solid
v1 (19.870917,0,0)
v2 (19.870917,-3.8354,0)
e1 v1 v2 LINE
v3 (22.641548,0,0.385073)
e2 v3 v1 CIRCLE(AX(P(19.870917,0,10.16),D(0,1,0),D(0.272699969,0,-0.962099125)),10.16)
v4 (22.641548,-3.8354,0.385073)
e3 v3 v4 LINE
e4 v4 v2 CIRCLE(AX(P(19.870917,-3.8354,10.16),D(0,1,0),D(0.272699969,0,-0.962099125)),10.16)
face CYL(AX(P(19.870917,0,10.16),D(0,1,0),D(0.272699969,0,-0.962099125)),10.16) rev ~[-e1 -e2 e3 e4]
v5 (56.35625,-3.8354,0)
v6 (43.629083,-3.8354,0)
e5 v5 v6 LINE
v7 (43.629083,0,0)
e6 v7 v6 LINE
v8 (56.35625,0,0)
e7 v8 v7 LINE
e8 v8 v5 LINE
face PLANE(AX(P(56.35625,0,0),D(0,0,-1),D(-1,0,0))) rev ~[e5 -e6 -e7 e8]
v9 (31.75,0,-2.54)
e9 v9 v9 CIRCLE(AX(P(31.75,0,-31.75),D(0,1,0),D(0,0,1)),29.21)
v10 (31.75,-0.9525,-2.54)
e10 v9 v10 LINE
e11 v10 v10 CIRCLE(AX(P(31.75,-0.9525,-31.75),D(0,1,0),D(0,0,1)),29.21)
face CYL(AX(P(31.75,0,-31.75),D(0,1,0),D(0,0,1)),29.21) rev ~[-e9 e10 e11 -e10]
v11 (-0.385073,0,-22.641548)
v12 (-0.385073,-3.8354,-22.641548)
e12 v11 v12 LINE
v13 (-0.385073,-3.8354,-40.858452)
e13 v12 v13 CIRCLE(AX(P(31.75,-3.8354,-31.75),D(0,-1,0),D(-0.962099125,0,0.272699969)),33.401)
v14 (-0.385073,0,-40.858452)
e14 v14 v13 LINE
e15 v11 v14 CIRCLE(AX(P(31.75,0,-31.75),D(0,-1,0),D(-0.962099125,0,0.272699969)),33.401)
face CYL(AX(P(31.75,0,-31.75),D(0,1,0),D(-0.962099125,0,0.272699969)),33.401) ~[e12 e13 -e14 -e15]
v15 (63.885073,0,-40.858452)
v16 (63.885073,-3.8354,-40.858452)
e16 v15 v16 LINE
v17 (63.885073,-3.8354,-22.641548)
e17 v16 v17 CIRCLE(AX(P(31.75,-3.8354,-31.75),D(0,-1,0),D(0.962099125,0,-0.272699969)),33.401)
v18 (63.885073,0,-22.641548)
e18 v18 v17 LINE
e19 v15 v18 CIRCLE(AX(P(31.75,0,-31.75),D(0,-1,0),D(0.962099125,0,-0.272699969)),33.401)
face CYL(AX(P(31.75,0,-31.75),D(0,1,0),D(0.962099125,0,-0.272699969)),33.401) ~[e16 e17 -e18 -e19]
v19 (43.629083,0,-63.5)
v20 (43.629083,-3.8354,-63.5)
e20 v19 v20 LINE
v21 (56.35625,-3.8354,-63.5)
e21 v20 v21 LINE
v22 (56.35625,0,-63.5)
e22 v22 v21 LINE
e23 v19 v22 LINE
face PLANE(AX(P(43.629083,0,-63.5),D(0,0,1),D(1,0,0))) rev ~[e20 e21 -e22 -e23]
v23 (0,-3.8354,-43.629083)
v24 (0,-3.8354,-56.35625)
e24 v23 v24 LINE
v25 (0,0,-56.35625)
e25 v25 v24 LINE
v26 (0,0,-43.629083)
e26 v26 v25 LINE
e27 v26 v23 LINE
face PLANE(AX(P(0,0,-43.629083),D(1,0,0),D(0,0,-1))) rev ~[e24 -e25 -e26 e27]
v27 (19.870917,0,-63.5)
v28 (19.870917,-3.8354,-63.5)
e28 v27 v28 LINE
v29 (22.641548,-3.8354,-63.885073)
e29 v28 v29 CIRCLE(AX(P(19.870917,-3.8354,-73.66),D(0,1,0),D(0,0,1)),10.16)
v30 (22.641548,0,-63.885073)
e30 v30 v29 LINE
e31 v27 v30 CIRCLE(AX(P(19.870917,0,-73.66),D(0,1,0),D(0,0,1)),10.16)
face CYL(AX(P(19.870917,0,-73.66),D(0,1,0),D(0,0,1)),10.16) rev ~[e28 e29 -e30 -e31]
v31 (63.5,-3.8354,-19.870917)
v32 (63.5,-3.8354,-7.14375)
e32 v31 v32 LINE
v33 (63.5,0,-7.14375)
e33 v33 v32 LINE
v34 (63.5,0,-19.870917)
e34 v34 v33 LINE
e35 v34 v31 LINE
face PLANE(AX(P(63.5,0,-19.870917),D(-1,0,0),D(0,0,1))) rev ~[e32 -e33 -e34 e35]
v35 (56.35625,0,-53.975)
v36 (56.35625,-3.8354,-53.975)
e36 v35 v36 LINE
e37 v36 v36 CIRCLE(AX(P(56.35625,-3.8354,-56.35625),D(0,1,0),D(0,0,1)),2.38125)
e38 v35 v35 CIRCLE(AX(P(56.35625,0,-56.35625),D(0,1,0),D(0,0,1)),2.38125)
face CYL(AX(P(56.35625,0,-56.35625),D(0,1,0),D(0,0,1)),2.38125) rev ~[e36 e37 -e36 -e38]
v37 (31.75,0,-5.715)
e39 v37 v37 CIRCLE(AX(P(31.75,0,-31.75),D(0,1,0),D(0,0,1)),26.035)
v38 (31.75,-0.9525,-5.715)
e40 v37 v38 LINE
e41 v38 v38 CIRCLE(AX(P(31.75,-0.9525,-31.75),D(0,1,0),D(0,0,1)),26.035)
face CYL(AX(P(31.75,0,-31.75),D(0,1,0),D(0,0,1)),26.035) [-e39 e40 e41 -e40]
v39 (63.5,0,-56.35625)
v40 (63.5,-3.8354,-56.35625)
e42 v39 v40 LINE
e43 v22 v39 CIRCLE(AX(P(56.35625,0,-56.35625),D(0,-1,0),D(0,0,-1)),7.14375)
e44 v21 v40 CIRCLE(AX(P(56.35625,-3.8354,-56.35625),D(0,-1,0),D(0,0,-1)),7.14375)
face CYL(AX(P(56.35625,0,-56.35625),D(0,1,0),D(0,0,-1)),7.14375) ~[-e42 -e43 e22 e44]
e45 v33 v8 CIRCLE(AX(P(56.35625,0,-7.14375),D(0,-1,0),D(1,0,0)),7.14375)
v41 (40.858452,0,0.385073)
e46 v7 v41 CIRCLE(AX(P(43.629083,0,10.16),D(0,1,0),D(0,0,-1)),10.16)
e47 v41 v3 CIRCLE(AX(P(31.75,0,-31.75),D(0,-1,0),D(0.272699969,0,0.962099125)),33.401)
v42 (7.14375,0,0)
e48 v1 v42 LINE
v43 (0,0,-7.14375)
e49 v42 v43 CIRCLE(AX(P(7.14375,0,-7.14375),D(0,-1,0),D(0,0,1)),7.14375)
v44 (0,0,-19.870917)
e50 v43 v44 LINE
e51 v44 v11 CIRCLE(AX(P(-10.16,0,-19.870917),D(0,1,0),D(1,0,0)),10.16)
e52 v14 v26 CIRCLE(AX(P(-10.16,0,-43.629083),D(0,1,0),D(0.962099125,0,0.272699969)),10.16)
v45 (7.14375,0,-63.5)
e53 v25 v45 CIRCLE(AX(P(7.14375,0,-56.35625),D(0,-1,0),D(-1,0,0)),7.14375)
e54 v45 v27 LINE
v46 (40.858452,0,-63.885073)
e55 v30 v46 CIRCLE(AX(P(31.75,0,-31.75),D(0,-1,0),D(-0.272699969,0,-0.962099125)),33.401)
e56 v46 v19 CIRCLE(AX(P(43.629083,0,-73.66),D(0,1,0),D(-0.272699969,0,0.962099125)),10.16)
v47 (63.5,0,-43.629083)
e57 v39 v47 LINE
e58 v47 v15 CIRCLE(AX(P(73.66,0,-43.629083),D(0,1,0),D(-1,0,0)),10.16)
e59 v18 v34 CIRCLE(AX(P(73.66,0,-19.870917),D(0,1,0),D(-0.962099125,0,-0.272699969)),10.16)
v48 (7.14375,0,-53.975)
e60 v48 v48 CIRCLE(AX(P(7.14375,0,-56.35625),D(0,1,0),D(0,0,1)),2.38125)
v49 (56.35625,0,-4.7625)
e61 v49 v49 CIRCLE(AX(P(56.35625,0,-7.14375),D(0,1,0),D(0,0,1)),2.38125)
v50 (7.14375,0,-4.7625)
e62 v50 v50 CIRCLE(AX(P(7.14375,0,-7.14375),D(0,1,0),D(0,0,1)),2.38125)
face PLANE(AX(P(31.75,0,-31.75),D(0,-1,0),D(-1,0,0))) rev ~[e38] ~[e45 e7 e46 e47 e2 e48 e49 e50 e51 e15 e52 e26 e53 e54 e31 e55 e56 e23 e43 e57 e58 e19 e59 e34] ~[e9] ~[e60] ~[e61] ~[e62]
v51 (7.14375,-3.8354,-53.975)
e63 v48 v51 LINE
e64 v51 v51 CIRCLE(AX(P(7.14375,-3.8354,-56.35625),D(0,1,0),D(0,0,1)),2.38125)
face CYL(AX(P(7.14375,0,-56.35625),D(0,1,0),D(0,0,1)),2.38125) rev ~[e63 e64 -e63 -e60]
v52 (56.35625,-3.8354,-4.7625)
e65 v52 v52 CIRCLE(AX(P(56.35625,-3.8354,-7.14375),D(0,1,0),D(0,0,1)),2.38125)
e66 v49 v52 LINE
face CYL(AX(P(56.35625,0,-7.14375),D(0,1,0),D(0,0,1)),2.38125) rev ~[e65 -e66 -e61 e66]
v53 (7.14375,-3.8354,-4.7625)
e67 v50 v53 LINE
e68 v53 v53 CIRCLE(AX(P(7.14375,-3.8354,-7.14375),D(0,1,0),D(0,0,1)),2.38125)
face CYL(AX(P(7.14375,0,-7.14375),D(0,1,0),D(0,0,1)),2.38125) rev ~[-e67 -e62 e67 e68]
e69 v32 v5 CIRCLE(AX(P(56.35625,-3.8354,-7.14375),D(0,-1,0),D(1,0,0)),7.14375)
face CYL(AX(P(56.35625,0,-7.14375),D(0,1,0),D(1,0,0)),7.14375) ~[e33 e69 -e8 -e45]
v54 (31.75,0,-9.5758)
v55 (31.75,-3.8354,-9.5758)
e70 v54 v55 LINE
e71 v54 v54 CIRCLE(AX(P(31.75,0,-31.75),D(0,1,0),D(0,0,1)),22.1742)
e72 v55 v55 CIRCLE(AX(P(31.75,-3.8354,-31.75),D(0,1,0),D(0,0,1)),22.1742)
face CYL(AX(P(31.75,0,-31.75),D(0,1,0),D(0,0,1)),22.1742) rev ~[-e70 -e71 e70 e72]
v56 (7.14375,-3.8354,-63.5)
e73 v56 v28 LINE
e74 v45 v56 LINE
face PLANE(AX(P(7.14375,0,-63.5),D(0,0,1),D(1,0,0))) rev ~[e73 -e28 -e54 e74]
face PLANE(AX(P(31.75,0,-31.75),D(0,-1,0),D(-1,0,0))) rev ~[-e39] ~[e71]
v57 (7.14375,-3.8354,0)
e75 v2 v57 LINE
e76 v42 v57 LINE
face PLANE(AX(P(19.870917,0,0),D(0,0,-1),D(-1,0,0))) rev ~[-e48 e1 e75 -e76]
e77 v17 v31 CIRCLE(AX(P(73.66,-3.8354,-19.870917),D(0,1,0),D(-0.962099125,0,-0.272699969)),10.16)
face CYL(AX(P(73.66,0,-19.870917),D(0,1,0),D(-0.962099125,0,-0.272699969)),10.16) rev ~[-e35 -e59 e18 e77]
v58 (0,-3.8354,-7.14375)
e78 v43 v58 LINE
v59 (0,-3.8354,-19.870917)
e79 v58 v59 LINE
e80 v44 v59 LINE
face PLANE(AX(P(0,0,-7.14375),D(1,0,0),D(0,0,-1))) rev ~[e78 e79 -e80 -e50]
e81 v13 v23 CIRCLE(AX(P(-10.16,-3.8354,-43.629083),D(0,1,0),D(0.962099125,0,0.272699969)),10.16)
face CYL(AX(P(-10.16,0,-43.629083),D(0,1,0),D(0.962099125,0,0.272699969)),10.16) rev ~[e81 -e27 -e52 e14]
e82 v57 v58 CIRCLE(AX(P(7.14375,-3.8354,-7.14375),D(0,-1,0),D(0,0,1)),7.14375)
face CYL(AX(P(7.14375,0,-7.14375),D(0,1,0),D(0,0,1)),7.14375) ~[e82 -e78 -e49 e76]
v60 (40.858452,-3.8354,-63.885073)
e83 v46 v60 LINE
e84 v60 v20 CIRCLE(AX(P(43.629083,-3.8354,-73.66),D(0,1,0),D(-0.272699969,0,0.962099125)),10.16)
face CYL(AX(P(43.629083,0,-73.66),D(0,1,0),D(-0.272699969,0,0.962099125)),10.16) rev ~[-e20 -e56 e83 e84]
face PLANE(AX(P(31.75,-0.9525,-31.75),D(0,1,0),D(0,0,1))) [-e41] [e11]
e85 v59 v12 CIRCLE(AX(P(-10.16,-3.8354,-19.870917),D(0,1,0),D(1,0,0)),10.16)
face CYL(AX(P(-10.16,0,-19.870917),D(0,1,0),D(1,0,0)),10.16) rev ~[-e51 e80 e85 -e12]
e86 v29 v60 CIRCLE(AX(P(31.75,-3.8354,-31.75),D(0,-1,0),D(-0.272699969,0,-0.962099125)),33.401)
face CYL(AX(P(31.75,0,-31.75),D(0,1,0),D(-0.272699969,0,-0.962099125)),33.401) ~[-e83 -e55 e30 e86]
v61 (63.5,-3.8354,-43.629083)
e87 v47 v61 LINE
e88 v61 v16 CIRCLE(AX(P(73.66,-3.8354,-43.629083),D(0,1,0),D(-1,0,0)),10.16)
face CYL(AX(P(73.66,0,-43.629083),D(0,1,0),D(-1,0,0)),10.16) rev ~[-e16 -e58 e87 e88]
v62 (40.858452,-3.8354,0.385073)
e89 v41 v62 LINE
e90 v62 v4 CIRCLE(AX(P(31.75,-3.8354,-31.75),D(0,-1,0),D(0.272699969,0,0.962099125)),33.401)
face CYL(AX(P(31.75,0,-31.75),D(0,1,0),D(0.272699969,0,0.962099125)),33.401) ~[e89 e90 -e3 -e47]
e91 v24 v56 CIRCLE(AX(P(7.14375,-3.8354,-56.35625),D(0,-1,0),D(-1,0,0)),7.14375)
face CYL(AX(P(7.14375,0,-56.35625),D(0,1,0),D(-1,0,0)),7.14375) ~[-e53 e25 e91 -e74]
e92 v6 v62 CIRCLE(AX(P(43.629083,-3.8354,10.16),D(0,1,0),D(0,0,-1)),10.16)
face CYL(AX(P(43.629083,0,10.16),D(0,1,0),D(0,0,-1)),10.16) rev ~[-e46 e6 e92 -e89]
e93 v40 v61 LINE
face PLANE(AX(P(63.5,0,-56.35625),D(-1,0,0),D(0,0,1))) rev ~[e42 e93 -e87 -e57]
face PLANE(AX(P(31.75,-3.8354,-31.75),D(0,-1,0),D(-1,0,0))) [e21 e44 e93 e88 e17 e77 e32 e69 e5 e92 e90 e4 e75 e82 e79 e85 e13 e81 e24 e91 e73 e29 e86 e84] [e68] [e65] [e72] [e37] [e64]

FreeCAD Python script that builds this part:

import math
import FreeCAD as App
import Part
import Sketcher
Q = App.Units.Quantity

doc = App.newDocument("Part")
body = doc.addObject("PartDesign::Body", "Body")

sketch1 = body.newObject("Sketcher::SketchObject", "Sketch")
sketch1.AttachmentSupport = (doc.getObject("XZ_Plane"), [""])
sketch1.MapMode = "FlatFace"
sketch1.addGeometry(Part.LineSegment(App.Vector(0, -56.4, 0), App.Vector(0, -43.6, 0)), False)
sketch1.addGeometry(Part.ArcOfCircle(Part.Circle(App.Vector(-10.2, -43.6, 0), App.Vector(0, 0, 1), 10.2), math.radians(0), math.radians(15.82)), False)
sketch1.addGeometry(Part.ArcOfCircle(Part.Circle(App.Vector(31.7, -31.8, 0), App.Vector(0, 0, 1), 33.4), math.radians(164), math.radians(196)), False)
sketch1.addGeometry(Part.ArcOfCircle(Part.Circle(App.Vector(-10.2, -19.9, 0), App.Vector(0, 0, 1), 10.2), math.radians(-15.82), math.radians(0)), False)
sketch1.addGeometry(Part.LineSegment(App.Vector(0, -19.9, 0), App.Vector(0, -7.1, 0)), False)
sketch1.addGeometry(Part.ArcOfCircle(Part.Circle(App.Vector(7.1, -7.1, 0), App.Vector(0, 0, 1), 7.1), math.radians(90), math.radians(180)), False)
sketch1.addGeometry(Part.LineSegment(App.Vector(7.1, 0, 0), App.Vector(19.9, 0, 0)), False)
sketch1.addGeometry(Part.ArcOfCircle(Part.Circle(App.Vector(19.9, 10.2, 0), App.Vector(0, 0, 1), 10.2), math.radians(-90), math.radians(-74.18)), False)
sketch1.addGeometry(Part.ArcOfCircle(Part.Circle(App.Vector(31.8, -31.7, 0), App.Vector(0, 0, 1), 33.4), math.radians(74), math.radians(106)), False)
sketch1.addGeometry(Part.ArcOfCircle(Part.Circle(App.Vector(43.6, 10.2, 0), App.Vector(0, 0, 1), 10.2), math.radians(-105.82), math.radians(-90)), False)
sketch1.addGeometry(Part.LineSegment(App.Vector(43.6, 0, 0), App.Vector(56.4, 0, 0)), False)
sketch1.addGeometry(Part.ArcOfCircle(Part.Circle(App.Vector(56.4, -7.1, 0), App.Vector(0, 0, 1), 7.1), math.radians(0), math.radians(90)), False)
sketch1.addGeometry(Part.LineSegment(App.Vector(63.5, -7.1, 0), App.Vector(63.5, -19.9, 0)), False)
sketch1.addGeometry(Part.ArcOfCircle(Part.Circle(App.Vector(73.7, -19.9, 0), App.Vector(0, 0, 1), 10.2), math.radians(180), math.radians(195.82)), False)
sketch1.addGeometry(Part.ArcOfCircle(Part.Circle(App.Vector(31.8, -31.8, 0), App.Vector(0, 0, 1), 33.4), math.radians(-16), math.radians(16)), False)
sketch1.addGeometry(Part.ArcOfCircle(Part.Circle(App.Vector(73.7, -43.6, 0), App.Vector(0, 0, 1), 10.2), math.radians(164.18), math.radians(180)), False)
sketch1.addGeometry(Part.LineSegment(App.Vector(63.5, -43.6, 0), App.Vector(63.5, -56.4, 0)), False)
sketch1.addGeometry(Part.ArcOfCircle(Part.Circle(App.Vector(56.4, -56.4, 0), App.Vector(0, 0, 1), 7.1), math.radians(-90), math.radians(0)), False)
sketch1.addGeometry(Part.LineSegment(App.Vector(56.4, -63.5, 0), App.Vector(43.6, -63.5, 0)), False)
sketch1.addGeometry(Part.ArcOfCircle(Part.Circle(App.Vector(43.6, -73.7, 0), App.Vector(0, 0, 1), 10.2), math.radians(90), math.radians(105.82)), False)
sketch1.addGeometry(Part.ArcOfCircle(Part.Circle(App.Vector(31.8, -31.8, 0), App.Vector(0, 0, 1), 33.4), math.radians(-106), math.radians(-74)), False)
sketch1.addGeometry(Part.ArcOfCircle(Part.Circle(App.Vector(19.9, -73.7, 0), App.Vector(0, 0, 1), 10.2), math.radians(74.18), math.radians(90)), False)
sketch1.addGeometry(Part.LineSegment(App.Vector(19.9, -63.5, 0), App.Vector(7.1, -63.5, 0)), False)
sketch1.addGeometry(Part.ArcOfCircle(Part.Circle(App.Vector(7.1, -56.4, 0), App.Vector(0, 0, 1), 7.1), math.radians(180), math.radians(270)), False)
sketch1.addGeometry(Part.Circle(App.Vector(56.4, -7.1, 0), App.Vector(0, 0, 1), 2.4), False)
sketch1.addGeometry(Part.Circle(App.Vector(7.1, -7.1, 0), App.Vector(0, 0, 1), 2.4), False)
sketch1.addGeometry(Part.Circle(App.Vector(31.8, -31.8, 0), App.Vector(0, 0, 1), 22.2), False)
sketch1.addGeometry(Part.Circle(App.Vector(56.4, -56.4, 0), App.Vector(0, 0, 1), 2.4), False)
sketch1.addGeometry(Part.Circle(App.Vector(7.1, -56.4, 0), App.Vector(0, 0, 1), 2.4), False)
sketch1.addConstraint(Sketcher.Constraint("Tangent", 0, 2, 1, 1))
sketch1.addConstraint(Sketcher.Constraint("Tangent", 1, 2, 2, 2))
sketch1.addConstraint(Sketcher.Constraint("Tangent", 2, 1, 3, 1))
sketch1.addConstraint(Sketcher.Constraint("Tangent", 3, 2, 4, 1))
sketch1.addConstraint(Sketcher.Constraint("Tangent", 4, 2, 5, 2))
sketch1.addConstraint(Sketcher.Constraint("Tangent", 5, 1, 6, 1))
sketch1.addConstraint(Sketcher.Constraint("Tangent", 6, 2, 7, 1))
sketch1.addConstraint(Sketcher.Constraint("Tangent", 7, 2, 8, 2))
sketch1.addConstraint(Sketcher.Constraint("Tangent", 8, 1, 9, 1))
sketch1.addConstraint(Sketcher.Constraint("Tangent", 9, 2, 10, 1))
sketch1.addConstraint(Sketcher.Constraint("Tangent", 10, 2, 11, 2))
sketch1.addConstraint(Sketcher.Constraint("Tangent", 11, 1, 12, 1))
sketch1.addConstraint(Sketcher.Constraint("Tangent", 12, 2, 13, 1))
sketch1.addConstraint(Sketcher.Constraint("Tangent", 13, 2, 14, 2))
sketch1.addConstraint(Sketcher.Constraint("Tangent", 14, 1, 15, 1))
sketch1.addConstraint(Sketcher.Constraint("Tangent", 15, 2, 16, 1))
sketch1.addConstraint(Sketcher.Constraint("Tangent", 16, 2, 17, 2))
sketch1.addConstraint(Sketcher.Constraint("Tangent", 17, 1, 18, 1))
sketch1.addConstraint(Sketcher.Constraint("Tangent", 18, 2, 19, 1))
sketch1.addConstraint(Sketcher.Constraint("Tangent", 19, 2, 20, 2))
sketch1.addConstraint(Sketcher.Constraint("Tangent", 20, 1, 21, 1))
sketch1.addConstraint(Sketcher.Constraint("Tangent", 21, 2, 22, 1))
sketch1.addConstraint(Sketcher.Constraint("Tangent", 22, 2, 23, 2))
sketch1.addConstraint(Sketcher.Constraint("Tangent", 23, 1, 0, 1))
sketch1.addConstraint(Sketcher.Constraint("Vertical", 0))
sketch1.addConstraint(Sketcher.Constraint("Vertical", 4))
sketch1.addConstraint(Sketcher.Constraint("Horizontal", 6))
sketch1.addConstraint(Sketcher.Constraint("Horizontal", 10))
sketch1.addConstraint(Sketcher.Constraint("Vertical", 12))
sketch1.addConstraint(Sketcher.Constraint("Vertical", 16))
sketch1.addConstraint(Sketcher.Constraint("Horizontal", 18))
sketch1.addConstraint(Sketcher.Constraint("Horizontal", 22))
sketch1.addConstraint(Sketcher.Constraint("Coincident", 8, 3, 2, 3))
sketch1.addConstraint(Sketcher.Constraint("Coincident", 14, 3, 2, 3))
sketch1.addConstraint(Sketcher.Constraint("Coincident", 20, 3, 2, 3))
sketch1.addConstraint(Sketcher.Constraint("Coincident", 24, 3, 11, 3))
sketch1.addConstraint(Sketcher.Constraint("Coincident", 25, 3, 5, 3))
sketch1.addConstraint(Sketcher.Constraint("Coincident", 26, 3, 2, 3))
sketch1.addConstraint(Sketcher.Constraint("Coincident", 27, 3, 17, 3))
sketch1.addConstraint(Sketcher.Constraint("Coincident", 28, 3, 23, 3))
sketch1.addConstraint(Sketcher.Constraint("Equal", 1, 3))
sketch1.addConstraint(Sketcher.Constraint("Equal", 3, 7))
sketch1.addConstraint(Sketcher.Constraint("Equal", 2, 8))
sketch1.addConstraint(Sketcher.Constraint("Equal", 7, 9))
sketch1.addConstraint(Sketcher.Constraint("Equal", 5, 11))
sketch1.addConstraint(Sketcher.Constraint("Equal", 9, 13))
sketch1.addConstraint(Sketcher.Constraint("Equal", 8, 14))
sketch1.addConstraint(Sketcher.Constraint("Equal", 13, 15))
sketch1.addConstraint(Sketcher.Constraint("Equal", 11, 17))
sketch1.addConstraint(Sketcher.Constraint("Equal", 15, 19))
sketch1.addConstraint(Sketcher.Constraint("Equal", 14, 20))
sketch1.addConstraint(Sketcher.Constraint("Equal", 19, 21))
sketch1.addConstraint(Sketcher.Constraint("Equal", 17, 23))
sketch1.addConstraint(Sketcher.Constraint("Equal", 24, 25))
sketch1.addConstraint(Sketcher.Constraint("Equal", 25, 27))
sketch1.addConstraint(Sketcher.Constraint("Equal", 27, 28))
sketch1.addConstraint(Sketcher.Constraint("PointOnObject", 0, 2, -2))
sketch1.addConstraint(Sketcher.Constraint("PointOnObject", 3, 2, -2))
sketch1.addConstraint(Sketcher.Constraint("PointOnObject", 5, 1, -1))
sketch1.addConstraint(Sketcher.Constraint("PointOnObject", 9, 2, -1))
sketch1.addConstraint(Sketcher.Constraint("Horizontal", 3, 3, 13, 3))
sketch1.addConstraint(Sketcher.Constraint("Horizontal", 1, 3, 15, 3))
sketch1.addConstraint(Sketcher.Constraint("Horizontal", 19, 3, 21, 3))
sketch1.addConstraint(Sketcher.Constraint("Vertical", 9, 3, 19, 3))
sketch1.addConstraint(Sketcher.Constraint("Equal", 22, 0))
sketch1.addConstraint(Sketcher.Constraint("Radius", 1, Q("0.4 in")))
sketch1.addConstraint(Sketcher.Constraint("Diameter", 24, Q("0.1875 in")))
sketch1.addConstraint(Sketcher.Constraint("Diameter", 26, Q("1.746 in")))
sketch1.addConstraint(Sketcher.Constraint("Radius", 2, Q("1.315 in")))
sketch1.addConstraint(Sketcher.Constraint("Radius", 5, Q("0.28125 in")))
sketch1.addConstraint(Sketcher.Constraint("DistanceX", -1, 1, 13, 3, Q("2.9 in")))
pad1 = body.newObject("PartDesign::Pad", "Pad")
pad1.Profile = sketch1
pad1.Length = Q("0.151 in")

sketch2 = body.newObject("Sketcher::SketchObject", "Sketch001")
sketch2.AttachmentSupport = (doc.getObject("XZ_Plane"), [""])
sketch2.MapMode = "FlatFace"
sketch2.addGeometry(Part.Circle(App.Vector(32, -32, 0), App.Vector(0, 0, 1), 29), False)
sketch2.addGeometry(Part.Circle(App.Vector(32, -32, 0), App.Vector(0, 0, 1), 26), False)
sketch2.addConstraint(Sketcher.Constraint("Coincident", 1, 3, 0, 3))
sketch2.addConstraint(Sketcher.Constraint("Diameter", 0, Q("2.3 in")))
sketch2.addConstraint(Sketcher.Constraint("Diameter", 1, Q("2.05 in")))
sketch2.addConstraint(Sketcher.Constraint("DistanceX", -1, 1, 0, 3, Q("1.25 in")))
sketch2.addConstraint(Sketcher.Constraint("DistanceY", 0, 3, -1, 1, Q("1.25 in")))
pocket1 = body.newObject("PartDesign::Pocket", "Pocket")
pocket1.Profile = sketch2
pocket1.Length = Q("0.0375 in")
pocket1.Reversed = True

doc.recompute()
